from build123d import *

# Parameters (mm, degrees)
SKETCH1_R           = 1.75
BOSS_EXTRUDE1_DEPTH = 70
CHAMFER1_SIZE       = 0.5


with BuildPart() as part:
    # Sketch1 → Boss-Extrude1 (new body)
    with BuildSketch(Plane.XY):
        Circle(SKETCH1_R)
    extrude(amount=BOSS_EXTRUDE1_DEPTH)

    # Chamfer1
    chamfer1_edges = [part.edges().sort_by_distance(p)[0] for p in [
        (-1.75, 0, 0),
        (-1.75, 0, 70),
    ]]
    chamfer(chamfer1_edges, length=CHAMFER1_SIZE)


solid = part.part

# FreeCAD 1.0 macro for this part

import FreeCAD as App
import Part
import Sketcher
from FreeCAD import Vector
Q = App.Units.Quantity


def edges_at(feature, points):
    """Names of the edges that pass closest to the given points."""
    edges = feature.Shape.Edges
    near = lambda p: min(range(len(edges)), key=lambda i: edges[i].distToShape(Part.Vertex(*p))[0])
    return sorted({f"Edge{near(p) + 1}" for p in points})

doc = App.newDocument("Part")
body = doc.addObject("PartDesign::Body", "Body")

sketch1 = body.newObject("Sketcher::SketchObject", "Sketch")
sketch1.AttachmentSupport = (doc.getObject("XY_Plane"), [""])
sketch1.MapMode = "FlatFace"
sketch1.addGeometry(Part.Circle(Vector(0, 0, 0), Vector(0, 0, 1), 1.8), False)
sketch1.addConstraint(Sketcher.Constraint("Coincident", 0, 3, -1, 1))
sketch1.addConstraint(Sketcher.Constraint("Diameter", 0, Q("3.5 mm")))
pad1 = body.newObject("PartDesign::Pad", "Pad")
pad1.Profile = sketch1
pad1.Length = 70
doc.recompute()

chamfer = body.newObject("PartDesign::Chamfer", "Chamfer")
chamfer.Base = (pad1, edges_at(pad1, [(-1.75, 0, 0), (-1.75, 0, 70)]))
chamfer.Size = 0.5

doc.recompute()
